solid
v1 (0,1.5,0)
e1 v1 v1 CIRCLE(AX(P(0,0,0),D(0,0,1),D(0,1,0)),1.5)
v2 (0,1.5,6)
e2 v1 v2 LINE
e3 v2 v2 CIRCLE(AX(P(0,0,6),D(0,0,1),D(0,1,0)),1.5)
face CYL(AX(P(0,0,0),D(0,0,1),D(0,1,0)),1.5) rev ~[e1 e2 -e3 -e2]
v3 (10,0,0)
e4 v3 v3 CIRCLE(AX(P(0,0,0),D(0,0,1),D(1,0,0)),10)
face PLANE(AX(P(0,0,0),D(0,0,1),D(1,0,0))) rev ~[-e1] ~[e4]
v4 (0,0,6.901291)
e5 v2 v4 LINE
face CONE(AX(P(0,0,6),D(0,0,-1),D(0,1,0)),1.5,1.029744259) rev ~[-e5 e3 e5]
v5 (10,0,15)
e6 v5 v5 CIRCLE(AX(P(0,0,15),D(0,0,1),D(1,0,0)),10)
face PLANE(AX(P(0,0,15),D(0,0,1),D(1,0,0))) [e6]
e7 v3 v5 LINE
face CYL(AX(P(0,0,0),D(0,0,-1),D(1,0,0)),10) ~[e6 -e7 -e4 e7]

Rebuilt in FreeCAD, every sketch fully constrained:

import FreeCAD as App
import Part
import Sketcher
from FreeCAD import Vector
Q = App.Units.Quantity

doc = App.newDocument("Part")
body = doc.addObject("PartDesign::Body", "Body")

sketch1 = body.newObject("Sketcher::SketchObject", "Sketch")
sketch1.AttachmentSupport = (doc.getObject("XY_Plane"), [""])
sketch1.MapMode = "FlatFace"
sketch1.addGeometry(Part.Circle(Vector(0, 0, 0), Vector(0, 0, 1), 10), False)
sketch1.addConstraint([
    Sketcher.Constraint("Coincident", 0, 3, -1, 1),
    Sketcher.Constraint("Diameter", 0, Q("20 mm")),
])
pad1 = body.newObject("PartDesign::Pad", "Pad")
pad1.Profile = sketch1
pad1.Length = 15

sketch2 = body.newObject("Sketcher::SketchObject", "Sketch001")
sketch2.AttachmentSupport = (doc.getObject("XY_Plane"), [""])
sketch2.MapMode = "FlatFace"
sketch2.addGeometry(Part.Circle(Vector(0, 0, 0), Vector(0, 0, 1), 1.5), False)
sketch2.addConstraint([
    Sketcher.Constraint("Coincident", 0, 3, -1, 1),
    Sketcher.Constraint("Diameter", 0, Q("3 mm")),
])
doc.recompute()
hole = body.newObject("PartDesign::Hole", "Hole")
hole.Profile = sketch2
hole.ThreadType = "None"
hole.Diameter = 3
hole.DepthType = "Dimension"
hole.Depth = 6
hole.DrillPoint = "Angled"
hole.DrillPointAngle = 118
hole.Reversed = True

doc.recompute()
